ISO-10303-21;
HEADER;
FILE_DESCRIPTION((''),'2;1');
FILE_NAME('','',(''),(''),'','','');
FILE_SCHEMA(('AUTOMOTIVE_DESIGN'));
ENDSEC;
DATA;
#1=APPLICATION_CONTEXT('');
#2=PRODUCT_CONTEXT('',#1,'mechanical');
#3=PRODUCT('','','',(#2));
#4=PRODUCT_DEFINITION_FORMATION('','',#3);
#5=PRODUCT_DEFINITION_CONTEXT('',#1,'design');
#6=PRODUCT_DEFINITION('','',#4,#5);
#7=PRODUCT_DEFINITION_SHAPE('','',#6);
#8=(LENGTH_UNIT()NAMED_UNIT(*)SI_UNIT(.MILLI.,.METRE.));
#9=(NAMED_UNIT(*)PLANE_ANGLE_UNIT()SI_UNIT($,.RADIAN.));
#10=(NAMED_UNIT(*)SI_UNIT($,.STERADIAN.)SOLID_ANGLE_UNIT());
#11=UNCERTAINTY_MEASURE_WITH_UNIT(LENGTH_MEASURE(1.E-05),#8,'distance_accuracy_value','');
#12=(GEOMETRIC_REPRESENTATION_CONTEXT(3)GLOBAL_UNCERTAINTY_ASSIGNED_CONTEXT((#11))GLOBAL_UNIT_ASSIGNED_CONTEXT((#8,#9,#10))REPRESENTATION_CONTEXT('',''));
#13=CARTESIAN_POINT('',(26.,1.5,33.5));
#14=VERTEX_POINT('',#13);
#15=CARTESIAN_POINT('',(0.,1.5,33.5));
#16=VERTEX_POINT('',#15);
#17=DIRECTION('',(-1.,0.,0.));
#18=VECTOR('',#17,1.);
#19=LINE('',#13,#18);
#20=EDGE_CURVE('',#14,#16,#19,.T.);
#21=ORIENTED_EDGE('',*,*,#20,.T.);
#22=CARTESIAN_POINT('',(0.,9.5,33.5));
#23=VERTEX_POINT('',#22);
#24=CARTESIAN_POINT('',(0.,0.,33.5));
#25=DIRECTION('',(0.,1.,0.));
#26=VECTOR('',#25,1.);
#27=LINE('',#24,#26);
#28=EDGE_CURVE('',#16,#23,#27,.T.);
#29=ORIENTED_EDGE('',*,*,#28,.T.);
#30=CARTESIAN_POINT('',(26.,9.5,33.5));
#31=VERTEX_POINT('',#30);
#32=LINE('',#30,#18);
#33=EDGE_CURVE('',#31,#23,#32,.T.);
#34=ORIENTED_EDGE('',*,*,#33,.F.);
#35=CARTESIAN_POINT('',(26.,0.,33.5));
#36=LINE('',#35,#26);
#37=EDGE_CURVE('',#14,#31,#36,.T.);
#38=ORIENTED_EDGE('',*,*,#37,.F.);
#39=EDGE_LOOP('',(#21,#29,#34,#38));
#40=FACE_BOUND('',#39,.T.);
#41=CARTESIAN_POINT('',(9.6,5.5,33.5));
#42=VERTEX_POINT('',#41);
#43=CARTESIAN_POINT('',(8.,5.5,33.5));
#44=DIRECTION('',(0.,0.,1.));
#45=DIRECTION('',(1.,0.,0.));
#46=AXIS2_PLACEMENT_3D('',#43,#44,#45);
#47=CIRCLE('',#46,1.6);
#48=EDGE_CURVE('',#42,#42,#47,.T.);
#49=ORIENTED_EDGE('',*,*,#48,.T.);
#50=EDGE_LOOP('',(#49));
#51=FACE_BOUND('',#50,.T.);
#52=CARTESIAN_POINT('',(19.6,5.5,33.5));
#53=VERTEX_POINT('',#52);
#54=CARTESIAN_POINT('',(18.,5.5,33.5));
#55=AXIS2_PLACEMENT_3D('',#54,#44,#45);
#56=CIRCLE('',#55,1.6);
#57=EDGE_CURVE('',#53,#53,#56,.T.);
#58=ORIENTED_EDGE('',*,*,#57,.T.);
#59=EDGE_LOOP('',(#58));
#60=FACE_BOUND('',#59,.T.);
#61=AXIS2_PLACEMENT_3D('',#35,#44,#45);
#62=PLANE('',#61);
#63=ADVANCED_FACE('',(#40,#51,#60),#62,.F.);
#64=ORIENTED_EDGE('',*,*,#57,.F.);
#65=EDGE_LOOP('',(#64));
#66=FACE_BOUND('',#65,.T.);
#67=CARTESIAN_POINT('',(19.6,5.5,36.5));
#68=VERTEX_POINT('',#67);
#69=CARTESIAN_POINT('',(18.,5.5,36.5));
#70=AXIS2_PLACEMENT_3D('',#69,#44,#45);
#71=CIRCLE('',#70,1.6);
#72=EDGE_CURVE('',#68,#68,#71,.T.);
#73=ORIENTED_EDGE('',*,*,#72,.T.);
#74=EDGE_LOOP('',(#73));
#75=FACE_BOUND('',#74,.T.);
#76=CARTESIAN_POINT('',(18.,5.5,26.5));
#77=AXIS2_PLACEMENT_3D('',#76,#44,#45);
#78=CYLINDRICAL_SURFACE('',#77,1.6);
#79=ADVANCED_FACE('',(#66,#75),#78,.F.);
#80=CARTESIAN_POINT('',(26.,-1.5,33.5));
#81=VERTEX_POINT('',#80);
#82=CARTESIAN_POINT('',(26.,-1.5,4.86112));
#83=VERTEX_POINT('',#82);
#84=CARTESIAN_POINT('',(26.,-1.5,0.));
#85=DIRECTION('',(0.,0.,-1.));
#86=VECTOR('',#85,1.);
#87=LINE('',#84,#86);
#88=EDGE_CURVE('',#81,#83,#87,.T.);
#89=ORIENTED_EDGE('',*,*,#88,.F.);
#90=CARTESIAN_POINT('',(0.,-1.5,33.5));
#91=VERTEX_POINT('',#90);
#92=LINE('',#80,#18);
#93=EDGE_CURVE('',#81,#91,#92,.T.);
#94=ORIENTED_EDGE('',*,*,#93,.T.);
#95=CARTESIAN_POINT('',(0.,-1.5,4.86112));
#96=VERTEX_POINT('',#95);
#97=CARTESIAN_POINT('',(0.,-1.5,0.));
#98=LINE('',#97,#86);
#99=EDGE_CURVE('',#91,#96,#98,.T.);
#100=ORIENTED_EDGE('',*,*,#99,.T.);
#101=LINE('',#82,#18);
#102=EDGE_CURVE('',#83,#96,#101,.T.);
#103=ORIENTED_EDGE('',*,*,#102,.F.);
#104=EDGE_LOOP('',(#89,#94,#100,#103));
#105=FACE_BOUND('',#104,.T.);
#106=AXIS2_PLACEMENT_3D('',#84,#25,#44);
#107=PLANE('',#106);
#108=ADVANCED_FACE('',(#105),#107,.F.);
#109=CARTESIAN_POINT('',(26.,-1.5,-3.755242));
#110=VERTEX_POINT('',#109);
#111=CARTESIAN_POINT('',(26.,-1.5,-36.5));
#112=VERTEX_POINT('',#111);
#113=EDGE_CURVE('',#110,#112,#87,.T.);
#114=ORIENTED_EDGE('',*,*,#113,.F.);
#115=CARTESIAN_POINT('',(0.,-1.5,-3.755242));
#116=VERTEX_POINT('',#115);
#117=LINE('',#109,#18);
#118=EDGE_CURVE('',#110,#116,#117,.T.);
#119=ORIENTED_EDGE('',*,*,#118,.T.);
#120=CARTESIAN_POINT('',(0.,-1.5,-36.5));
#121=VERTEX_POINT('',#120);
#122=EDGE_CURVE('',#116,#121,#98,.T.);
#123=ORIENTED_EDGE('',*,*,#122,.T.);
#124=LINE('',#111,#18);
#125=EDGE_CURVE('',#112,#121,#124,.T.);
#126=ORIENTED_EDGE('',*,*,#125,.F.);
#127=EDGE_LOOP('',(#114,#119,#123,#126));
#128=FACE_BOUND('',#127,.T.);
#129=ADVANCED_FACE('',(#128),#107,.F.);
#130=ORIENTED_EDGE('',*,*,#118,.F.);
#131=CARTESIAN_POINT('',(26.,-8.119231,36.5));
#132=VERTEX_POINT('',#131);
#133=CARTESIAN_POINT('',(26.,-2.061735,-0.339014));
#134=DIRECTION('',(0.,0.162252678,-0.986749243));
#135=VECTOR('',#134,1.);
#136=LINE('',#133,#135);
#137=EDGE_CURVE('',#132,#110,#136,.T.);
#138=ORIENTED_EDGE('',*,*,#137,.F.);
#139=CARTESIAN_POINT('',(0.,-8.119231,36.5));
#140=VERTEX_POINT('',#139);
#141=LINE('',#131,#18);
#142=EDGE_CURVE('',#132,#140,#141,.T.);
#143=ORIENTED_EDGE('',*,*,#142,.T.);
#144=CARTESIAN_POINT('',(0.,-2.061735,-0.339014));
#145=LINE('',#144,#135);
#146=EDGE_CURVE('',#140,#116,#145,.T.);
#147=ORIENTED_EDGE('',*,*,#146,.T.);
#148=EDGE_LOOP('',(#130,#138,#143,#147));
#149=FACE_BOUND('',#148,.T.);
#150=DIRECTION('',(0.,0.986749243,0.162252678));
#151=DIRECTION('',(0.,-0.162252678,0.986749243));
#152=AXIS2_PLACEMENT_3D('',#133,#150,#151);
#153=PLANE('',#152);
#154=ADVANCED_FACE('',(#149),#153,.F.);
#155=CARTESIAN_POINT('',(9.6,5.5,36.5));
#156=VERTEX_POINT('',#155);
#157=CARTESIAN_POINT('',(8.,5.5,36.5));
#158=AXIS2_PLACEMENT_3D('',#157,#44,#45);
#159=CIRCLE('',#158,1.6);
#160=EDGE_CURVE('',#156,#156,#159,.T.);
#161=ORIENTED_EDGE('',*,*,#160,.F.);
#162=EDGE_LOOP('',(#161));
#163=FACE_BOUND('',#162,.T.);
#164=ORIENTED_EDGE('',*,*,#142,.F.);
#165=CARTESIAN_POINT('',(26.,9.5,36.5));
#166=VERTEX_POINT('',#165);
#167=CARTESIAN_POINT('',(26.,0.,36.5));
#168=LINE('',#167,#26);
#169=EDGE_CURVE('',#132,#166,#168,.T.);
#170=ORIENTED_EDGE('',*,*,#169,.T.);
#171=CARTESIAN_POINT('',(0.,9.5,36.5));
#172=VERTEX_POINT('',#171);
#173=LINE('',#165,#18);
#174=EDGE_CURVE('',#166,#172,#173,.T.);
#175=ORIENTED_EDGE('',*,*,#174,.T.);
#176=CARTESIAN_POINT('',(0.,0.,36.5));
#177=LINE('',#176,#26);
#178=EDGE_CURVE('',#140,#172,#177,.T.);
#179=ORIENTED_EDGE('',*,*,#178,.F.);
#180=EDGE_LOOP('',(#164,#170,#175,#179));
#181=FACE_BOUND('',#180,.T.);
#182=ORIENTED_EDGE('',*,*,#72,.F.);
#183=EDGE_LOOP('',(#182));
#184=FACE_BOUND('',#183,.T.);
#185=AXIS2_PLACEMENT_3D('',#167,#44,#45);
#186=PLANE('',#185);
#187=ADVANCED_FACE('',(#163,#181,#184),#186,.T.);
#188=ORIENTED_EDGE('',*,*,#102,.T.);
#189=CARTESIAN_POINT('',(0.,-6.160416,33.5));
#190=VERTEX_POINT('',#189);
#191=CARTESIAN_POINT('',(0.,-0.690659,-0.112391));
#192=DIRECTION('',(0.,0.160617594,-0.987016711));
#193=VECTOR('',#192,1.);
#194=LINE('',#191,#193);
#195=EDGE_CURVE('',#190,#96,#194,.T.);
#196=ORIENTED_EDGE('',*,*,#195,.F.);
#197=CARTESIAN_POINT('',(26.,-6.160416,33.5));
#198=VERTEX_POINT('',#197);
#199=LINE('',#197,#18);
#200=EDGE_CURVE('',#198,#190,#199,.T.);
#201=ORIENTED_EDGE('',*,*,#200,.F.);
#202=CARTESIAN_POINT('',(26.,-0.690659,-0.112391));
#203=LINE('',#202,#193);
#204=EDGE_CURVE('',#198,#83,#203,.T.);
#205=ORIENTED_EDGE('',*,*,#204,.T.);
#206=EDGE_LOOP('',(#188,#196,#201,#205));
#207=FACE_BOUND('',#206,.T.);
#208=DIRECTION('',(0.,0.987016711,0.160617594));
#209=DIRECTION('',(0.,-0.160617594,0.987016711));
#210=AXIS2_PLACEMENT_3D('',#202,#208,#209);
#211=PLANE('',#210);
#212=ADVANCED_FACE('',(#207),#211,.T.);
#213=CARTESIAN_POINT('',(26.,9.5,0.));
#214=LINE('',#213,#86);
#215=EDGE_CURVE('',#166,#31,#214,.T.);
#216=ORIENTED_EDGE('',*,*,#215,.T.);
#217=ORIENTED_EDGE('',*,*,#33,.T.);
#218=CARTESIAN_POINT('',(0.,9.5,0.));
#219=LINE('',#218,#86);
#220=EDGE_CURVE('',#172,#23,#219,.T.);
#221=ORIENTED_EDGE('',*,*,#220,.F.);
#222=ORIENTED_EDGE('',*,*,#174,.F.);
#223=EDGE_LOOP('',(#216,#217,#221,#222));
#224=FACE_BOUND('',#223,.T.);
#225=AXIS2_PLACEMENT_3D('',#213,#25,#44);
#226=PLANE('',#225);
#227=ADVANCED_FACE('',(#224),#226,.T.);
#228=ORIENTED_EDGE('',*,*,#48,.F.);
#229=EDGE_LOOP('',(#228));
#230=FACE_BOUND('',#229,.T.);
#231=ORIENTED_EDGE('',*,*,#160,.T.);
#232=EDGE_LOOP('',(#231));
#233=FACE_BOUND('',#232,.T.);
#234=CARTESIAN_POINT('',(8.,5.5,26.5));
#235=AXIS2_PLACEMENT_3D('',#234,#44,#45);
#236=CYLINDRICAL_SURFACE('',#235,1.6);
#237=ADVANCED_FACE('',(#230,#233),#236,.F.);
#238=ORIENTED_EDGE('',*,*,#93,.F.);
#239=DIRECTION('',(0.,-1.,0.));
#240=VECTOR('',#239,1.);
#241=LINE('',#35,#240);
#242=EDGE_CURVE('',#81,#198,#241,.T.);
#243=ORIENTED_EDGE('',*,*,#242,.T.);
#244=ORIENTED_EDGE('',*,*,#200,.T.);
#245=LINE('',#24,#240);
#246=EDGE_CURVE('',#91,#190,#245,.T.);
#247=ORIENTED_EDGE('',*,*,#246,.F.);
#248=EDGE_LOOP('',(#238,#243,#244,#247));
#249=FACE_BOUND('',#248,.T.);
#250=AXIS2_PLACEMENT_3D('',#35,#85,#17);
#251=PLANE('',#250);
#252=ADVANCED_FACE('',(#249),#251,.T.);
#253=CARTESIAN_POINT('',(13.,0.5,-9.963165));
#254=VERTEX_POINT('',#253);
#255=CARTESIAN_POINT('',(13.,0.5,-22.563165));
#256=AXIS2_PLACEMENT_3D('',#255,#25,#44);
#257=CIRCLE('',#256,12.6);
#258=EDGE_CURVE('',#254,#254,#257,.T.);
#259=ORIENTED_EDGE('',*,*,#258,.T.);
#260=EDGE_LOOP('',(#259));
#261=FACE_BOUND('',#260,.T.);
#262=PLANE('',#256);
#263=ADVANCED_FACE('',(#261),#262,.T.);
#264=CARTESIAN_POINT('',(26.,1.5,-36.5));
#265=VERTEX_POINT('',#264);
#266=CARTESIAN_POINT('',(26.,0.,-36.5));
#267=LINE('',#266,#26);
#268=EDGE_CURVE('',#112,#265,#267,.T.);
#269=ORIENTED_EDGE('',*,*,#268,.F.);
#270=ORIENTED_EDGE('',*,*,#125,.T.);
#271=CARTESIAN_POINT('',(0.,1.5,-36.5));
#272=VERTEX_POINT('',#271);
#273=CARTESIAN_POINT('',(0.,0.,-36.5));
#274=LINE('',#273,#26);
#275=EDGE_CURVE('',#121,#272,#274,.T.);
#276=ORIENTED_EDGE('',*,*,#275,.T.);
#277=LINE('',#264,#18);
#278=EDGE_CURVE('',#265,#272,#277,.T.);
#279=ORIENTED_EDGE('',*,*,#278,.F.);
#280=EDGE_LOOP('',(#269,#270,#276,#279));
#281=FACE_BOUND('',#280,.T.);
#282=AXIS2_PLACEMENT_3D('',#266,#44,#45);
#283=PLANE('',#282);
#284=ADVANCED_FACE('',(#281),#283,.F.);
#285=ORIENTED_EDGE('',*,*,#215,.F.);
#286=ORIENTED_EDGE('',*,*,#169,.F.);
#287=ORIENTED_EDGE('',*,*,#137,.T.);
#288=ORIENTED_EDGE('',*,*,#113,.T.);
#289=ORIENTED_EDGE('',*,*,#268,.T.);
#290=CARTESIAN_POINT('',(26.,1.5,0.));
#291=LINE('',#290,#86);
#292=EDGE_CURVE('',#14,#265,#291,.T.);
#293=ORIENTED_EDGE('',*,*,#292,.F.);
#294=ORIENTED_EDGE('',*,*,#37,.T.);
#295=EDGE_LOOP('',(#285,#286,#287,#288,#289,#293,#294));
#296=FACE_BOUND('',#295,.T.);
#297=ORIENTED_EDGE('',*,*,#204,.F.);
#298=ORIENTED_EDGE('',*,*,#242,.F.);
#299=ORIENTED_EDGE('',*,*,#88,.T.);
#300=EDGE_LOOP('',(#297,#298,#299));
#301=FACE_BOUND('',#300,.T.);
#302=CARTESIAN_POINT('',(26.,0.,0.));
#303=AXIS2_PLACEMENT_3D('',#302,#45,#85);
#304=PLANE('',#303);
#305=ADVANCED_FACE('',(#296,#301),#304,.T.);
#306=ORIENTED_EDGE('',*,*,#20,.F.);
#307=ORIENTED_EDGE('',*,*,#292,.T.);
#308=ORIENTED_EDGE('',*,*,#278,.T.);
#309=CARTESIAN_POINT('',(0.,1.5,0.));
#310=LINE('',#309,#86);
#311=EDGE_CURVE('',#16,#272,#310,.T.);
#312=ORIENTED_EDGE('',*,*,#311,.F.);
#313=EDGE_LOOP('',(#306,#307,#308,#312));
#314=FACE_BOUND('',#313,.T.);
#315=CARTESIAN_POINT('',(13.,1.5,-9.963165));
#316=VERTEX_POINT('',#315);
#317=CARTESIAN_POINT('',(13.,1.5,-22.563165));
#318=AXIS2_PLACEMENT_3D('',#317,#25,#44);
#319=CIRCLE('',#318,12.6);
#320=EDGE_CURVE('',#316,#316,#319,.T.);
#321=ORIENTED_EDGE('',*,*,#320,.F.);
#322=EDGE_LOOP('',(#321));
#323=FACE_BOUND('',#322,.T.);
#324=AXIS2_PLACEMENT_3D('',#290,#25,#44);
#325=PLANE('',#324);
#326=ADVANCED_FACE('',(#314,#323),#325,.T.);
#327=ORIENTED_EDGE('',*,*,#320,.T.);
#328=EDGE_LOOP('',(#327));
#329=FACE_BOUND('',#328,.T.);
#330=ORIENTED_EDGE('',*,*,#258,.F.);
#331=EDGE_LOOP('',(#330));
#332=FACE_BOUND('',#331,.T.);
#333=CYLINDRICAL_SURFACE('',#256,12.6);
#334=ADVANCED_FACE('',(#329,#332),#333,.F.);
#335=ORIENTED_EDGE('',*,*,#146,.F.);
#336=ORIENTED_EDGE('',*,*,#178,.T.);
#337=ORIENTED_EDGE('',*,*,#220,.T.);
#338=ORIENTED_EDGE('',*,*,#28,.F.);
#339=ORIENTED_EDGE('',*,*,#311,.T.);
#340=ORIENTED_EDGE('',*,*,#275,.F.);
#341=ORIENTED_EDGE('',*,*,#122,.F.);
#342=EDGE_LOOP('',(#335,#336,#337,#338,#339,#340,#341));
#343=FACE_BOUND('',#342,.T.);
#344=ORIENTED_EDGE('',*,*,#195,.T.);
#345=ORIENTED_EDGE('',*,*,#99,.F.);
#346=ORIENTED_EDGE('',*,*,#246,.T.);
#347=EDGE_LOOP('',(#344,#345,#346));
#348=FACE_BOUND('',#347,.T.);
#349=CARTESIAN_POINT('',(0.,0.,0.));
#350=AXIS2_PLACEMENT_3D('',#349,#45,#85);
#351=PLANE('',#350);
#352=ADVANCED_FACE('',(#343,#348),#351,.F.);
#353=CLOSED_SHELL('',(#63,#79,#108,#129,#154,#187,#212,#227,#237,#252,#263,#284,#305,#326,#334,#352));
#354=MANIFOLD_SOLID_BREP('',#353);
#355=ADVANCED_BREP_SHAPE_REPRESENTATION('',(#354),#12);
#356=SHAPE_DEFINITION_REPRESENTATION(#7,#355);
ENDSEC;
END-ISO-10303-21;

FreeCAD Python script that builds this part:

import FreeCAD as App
import Part
import Sketcher


def add_polygon(sketch, points):
    """Adds a closed chain of lines whose ends are joined by coincident constraints."""
    first, n = sketch.GeometryCount, len(points)
    for a, b in zip(points, points[1:] + points[:1]):
        sketch.addGeometry(Part.LineSegment(App.Vector(*a, 0), App.Vector(*b, 0)), False)
    for i in range(n):
        sketch.addConstraint(Sketcher.Constraint("Coincident", first + i, 2, first + (i + 1) % n, 1))

doc = App.newDocument("Part")
body = doc.addObject("PartDesign::Body", "Body")

# Sketch on YZ plane
sketch1 = doc.addObject("Sketcher::SketchObject", "Sketch")
body.addObject(sketch1)
sketch1.AttachmentSupport = (doc.YZ_Plane, [""])
sketch1.MapMode = "FlatFace"
add_polygon(sketch1, [(-8.1, 36.5), (-1.5, -3.8), (-1.5, -36.5), (1.5, -36.5), (1.5, 33.5), (9.5, 33.5), (9.5, 36.5)])  # lines 0-6
add_polygon(sketch1, [(-1.5, 33.5), (-1.5, 4.9), (-6.2, 33.5)])  # lines 7-9
sketch1.addConstraint([
    Sketcher.Constraint("Vertical", 1),
    Sketcher.Constraint("Horizontal", 2),
    Sketcher.Constraint("Vertical", 3),
    Sketcher.Constraint("Horizontal", 4),
    Sketcher.Constraint("Vertical", 5),
    Sketcher.Constraint("Horizontal", 6),
    Sketcher.Constraint("Vertical", 7),
    Sketcher.Constraint("Horizontal", 9),
    Sketcher.Constraint("Symmetric", 3, 2, 9, 2, -2),
    Sketcher.Constraint("Vertical", 1, 2, 7, 2),
    Sketcher.Constraint("Equal", 2, 5),
    Sketcher.Constraint("DistanceX", 2, 1, 2, 2, 3.0),
    Sketcher.Constraint("DistanceX", 4, 1, 4, 2, 8.0),
    Sketcher.Constraint("DistanceY", 3, 1, 3, 2, 70.0),
    Sketcher.Constraint("DistanceY", 1, 2, -1, 1, 36.5),
    Sketcher.Constraint("Distance", 8, 29.015598),
    Sketcher.Constraint("DistanceX", 6, 2, 6, 1, 17.619231),
    Sketcher.Constraint("DistanceY", 1, 2, 1, 1, 32.744758),
    Sketcher.Constraint("DistanceY", 7, 2, 7, 1, 28.63888),
])
pad1 = doc.addObject("PartDesign::Pad", "Pad")
body.addObject(pad1)
pad1.Profile = sketch1
pad1.Length = 26

# Sketch on XY plane
sketch2 = doc.addObject("Sketcher::SketchObject", "Sketch001")
body.addObject(sketch2)
sketch2.AttachmentSupport = (doc.XY_Plane, [""])
sketch2.MapMode = "FlatFace"
sketch2.AttachmentOffset = App.Placement(App.Vector(0, 0, 36.5), App.Rotation())
sketch2.addGeometry([
    Part.Circle(App.Vector(8, 5.5, 0), App.Vector(0, 0, 1), 1.6),
    Part.Circle(App.Vector(18, 5.5, 0), App.Vector(0, 0, 1), 1.6),
], False)
sketch2.addConstraint([
    Sketcher.Constraint("Equal", 0, 1),
    Sketcher.Constraint("Horizontal", 0, 3, 1, 3),
    Sketcher.Constraint("Diameter", 0, 3.2),
    Sketcher.Constraint("DistanceX", -1, 1, 0, 3, 8.0),
    Sketcher.Constraint("DistanceX", -1, 1, 1, 3, 18.0),
    Sketcher.Constraint("DistanceY", -1, 1, 0, 3, 5.5),
])
pocket1 = doc.addObject("PartDesign::Pocket", "Pocket")
body.addObject(pocket1)
pocket1.Profile = sketch2
pocket1.Length = 10

# Sketch on XZ plane
sketch3 = doc.addObject("Sketcher::SketchObject", "Sketch002")
body.addObject(sketch3)
sketch3.AttachmentSupport = (doc.XZ_Plane, [""])
sketch3.MapMode = "FlatFace"
sketch3.AttachmentOffset = App.Placement(App.Vector(0, 0, -1.5), App.Rotation())
sketch3.addGeometry(Part.Circle(App.Vector(13, -23, 0), App.Vector(0, 0, 1), 13), False)
sketch3.addConstraint([
    Sketcher.Constraint("Diameter", 0, 25.2),
    Sketcher.Constraint("DistanceX", -1, 1, 0, 3, 13.0),
    Sketcher.Constraint("DistanceY", 0, 3, -1, 1, 22.563165),
])
pocket2 = doc.addObject("PartDesign::Pocket", "Pocket001")
body.addObject(pocket2)
pocket2.Profile = sketch3
pocket2.Length = 1
pocket2.Reversed = True

doc.recompute()
